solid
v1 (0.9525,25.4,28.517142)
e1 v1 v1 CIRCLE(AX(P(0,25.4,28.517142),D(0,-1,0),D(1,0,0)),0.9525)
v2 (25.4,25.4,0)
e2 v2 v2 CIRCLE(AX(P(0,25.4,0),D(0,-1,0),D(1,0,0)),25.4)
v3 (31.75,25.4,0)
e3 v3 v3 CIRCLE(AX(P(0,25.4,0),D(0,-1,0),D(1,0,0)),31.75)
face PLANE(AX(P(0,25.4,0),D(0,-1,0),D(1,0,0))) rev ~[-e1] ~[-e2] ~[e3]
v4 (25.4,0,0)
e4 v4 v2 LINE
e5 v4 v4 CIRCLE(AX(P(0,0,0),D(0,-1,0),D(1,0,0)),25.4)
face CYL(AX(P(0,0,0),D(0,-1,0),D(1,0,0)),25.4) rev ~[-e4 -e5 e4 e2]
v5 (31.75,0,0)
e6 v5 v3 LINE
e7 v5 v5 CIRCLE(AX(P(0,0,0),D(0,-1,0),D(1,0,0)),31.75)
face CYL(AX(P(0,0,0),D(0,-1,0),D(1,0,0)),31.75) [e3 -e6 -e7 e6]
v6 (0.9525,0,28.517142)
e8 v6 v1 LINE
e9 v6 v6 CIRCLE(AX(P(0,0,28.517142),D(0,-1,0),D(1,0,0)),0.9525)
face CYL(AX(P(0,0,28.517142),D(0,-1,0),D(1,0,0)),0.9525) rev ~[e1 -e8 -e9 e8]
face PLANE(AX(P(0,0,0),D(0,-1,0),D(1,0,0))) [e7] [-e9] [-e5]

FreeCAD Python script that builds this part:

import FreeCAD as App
import Part
import Sketcher
Q = App.Units.Quantity

doc = App.newDocument("Part")
body = doc.addObject("PartDesign::Body", "Body")

# Sketch on XZ plane
sketch1 = body.newObject("Sketcher::SketchObject", "Sketch")
sketch1.AttachmentSupport = (doc.getObject("XZ_Plane"), [""])
sketch1.MapMode = "FlatFace"
sketch1.addGeometry(Part.Circle(App.Vector(0, 0, 0), App.Vector(0, 0, 1), 31.8), False)
sketch1.addGeometry(Part.Circle(App.Vector(0, 0, 0), App.Vector(0, 0, 1), 25.4), False)
sketch1.addGeometry(Part.Circle(App.Vector(0, 28.5, 0), App.Vector(0, 0, 1), 1), False)
sketch1.addConstraint(Sketcher.Constraint("Coincident", 0, 3, -1, 1))
sketch1.addConstraint(Sketcher.Constraint("Coincident", 1, 3, -1, 1))
sketch1.addConstraint(Sketcher.Constraint("PointOnObject", 2, 3, -2))
sketch1.addConstraint(Sketcher.Constraint("Diameter", 1, Q("2 in")))
sketch1.addConstraint(Sketcher.Constraint("Diameter", 0, Q("2.5 in")))
sketch1.addConstraint(Sketcher.Constraint("Diameter", 2, Q("0.075 in")))
sketch1.addConstraint(Sketcher.Constraint("DistanceY", -1, 1, 2, 3, Q("28.517142 mm")))
pad1 = body.newObject("PartDesign::Pad", "Pad")
pad1.Profile = sketch1
pad1.Length = Q("1 in")
pad1.Reversed = True

doc.recompute()
